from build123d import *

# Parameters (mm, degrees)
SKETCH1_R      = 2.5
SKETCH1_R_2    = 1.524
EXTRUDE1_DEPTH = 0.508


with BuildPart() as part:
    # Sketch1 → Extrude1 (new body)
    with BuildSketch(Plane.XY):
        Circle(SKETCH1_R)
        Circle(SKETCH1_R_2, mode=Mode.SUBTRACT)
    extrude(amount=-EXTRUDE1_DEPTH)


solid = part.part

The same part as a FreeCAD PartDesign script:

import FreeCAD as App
import Part
import Sketcher
Q = App.Units.Quantity

doc = App.newDocument("Part")
body = doc.addObject("PartDesign::Body", "Body")

# Sketch on XY plane
sketch1 = body.newObject("Sketcher::SketchObject", "Sketch")
sketch1.AttachmentSupport = (doc.getObject("XY_Plane"), [""])
sketch1.MapMode = "FlatFace"
sketch1.addGeometry([
    Part.Circle(App.Vector(0, 0, 0), App.Vector(0, 0, 1), 2.5),
    Part.Circle(App.Vector(0, 0, 0), App.Vector(0, 0, 1), 1.524),
], False)
sketch1.addConstraint([
    Sketcher.Constraint("Coincident", 0, 3, -1, 1),
    Sketcher.Constraint("Coincident", 1, 3, -1, 1),
    Sketcher.Constraint("Diameter", 1, Q("0.12 in")),
    Sketcher.Constraint("Diameter", 0, Q("5 mm")),
])
pad1 = body.newObject("PartDesign::Pad", "Pad")
pad1.Profile = sketch1
pad1.Length = Q("0.02 in")
pad1.Reversed = True

doc.recompute()
